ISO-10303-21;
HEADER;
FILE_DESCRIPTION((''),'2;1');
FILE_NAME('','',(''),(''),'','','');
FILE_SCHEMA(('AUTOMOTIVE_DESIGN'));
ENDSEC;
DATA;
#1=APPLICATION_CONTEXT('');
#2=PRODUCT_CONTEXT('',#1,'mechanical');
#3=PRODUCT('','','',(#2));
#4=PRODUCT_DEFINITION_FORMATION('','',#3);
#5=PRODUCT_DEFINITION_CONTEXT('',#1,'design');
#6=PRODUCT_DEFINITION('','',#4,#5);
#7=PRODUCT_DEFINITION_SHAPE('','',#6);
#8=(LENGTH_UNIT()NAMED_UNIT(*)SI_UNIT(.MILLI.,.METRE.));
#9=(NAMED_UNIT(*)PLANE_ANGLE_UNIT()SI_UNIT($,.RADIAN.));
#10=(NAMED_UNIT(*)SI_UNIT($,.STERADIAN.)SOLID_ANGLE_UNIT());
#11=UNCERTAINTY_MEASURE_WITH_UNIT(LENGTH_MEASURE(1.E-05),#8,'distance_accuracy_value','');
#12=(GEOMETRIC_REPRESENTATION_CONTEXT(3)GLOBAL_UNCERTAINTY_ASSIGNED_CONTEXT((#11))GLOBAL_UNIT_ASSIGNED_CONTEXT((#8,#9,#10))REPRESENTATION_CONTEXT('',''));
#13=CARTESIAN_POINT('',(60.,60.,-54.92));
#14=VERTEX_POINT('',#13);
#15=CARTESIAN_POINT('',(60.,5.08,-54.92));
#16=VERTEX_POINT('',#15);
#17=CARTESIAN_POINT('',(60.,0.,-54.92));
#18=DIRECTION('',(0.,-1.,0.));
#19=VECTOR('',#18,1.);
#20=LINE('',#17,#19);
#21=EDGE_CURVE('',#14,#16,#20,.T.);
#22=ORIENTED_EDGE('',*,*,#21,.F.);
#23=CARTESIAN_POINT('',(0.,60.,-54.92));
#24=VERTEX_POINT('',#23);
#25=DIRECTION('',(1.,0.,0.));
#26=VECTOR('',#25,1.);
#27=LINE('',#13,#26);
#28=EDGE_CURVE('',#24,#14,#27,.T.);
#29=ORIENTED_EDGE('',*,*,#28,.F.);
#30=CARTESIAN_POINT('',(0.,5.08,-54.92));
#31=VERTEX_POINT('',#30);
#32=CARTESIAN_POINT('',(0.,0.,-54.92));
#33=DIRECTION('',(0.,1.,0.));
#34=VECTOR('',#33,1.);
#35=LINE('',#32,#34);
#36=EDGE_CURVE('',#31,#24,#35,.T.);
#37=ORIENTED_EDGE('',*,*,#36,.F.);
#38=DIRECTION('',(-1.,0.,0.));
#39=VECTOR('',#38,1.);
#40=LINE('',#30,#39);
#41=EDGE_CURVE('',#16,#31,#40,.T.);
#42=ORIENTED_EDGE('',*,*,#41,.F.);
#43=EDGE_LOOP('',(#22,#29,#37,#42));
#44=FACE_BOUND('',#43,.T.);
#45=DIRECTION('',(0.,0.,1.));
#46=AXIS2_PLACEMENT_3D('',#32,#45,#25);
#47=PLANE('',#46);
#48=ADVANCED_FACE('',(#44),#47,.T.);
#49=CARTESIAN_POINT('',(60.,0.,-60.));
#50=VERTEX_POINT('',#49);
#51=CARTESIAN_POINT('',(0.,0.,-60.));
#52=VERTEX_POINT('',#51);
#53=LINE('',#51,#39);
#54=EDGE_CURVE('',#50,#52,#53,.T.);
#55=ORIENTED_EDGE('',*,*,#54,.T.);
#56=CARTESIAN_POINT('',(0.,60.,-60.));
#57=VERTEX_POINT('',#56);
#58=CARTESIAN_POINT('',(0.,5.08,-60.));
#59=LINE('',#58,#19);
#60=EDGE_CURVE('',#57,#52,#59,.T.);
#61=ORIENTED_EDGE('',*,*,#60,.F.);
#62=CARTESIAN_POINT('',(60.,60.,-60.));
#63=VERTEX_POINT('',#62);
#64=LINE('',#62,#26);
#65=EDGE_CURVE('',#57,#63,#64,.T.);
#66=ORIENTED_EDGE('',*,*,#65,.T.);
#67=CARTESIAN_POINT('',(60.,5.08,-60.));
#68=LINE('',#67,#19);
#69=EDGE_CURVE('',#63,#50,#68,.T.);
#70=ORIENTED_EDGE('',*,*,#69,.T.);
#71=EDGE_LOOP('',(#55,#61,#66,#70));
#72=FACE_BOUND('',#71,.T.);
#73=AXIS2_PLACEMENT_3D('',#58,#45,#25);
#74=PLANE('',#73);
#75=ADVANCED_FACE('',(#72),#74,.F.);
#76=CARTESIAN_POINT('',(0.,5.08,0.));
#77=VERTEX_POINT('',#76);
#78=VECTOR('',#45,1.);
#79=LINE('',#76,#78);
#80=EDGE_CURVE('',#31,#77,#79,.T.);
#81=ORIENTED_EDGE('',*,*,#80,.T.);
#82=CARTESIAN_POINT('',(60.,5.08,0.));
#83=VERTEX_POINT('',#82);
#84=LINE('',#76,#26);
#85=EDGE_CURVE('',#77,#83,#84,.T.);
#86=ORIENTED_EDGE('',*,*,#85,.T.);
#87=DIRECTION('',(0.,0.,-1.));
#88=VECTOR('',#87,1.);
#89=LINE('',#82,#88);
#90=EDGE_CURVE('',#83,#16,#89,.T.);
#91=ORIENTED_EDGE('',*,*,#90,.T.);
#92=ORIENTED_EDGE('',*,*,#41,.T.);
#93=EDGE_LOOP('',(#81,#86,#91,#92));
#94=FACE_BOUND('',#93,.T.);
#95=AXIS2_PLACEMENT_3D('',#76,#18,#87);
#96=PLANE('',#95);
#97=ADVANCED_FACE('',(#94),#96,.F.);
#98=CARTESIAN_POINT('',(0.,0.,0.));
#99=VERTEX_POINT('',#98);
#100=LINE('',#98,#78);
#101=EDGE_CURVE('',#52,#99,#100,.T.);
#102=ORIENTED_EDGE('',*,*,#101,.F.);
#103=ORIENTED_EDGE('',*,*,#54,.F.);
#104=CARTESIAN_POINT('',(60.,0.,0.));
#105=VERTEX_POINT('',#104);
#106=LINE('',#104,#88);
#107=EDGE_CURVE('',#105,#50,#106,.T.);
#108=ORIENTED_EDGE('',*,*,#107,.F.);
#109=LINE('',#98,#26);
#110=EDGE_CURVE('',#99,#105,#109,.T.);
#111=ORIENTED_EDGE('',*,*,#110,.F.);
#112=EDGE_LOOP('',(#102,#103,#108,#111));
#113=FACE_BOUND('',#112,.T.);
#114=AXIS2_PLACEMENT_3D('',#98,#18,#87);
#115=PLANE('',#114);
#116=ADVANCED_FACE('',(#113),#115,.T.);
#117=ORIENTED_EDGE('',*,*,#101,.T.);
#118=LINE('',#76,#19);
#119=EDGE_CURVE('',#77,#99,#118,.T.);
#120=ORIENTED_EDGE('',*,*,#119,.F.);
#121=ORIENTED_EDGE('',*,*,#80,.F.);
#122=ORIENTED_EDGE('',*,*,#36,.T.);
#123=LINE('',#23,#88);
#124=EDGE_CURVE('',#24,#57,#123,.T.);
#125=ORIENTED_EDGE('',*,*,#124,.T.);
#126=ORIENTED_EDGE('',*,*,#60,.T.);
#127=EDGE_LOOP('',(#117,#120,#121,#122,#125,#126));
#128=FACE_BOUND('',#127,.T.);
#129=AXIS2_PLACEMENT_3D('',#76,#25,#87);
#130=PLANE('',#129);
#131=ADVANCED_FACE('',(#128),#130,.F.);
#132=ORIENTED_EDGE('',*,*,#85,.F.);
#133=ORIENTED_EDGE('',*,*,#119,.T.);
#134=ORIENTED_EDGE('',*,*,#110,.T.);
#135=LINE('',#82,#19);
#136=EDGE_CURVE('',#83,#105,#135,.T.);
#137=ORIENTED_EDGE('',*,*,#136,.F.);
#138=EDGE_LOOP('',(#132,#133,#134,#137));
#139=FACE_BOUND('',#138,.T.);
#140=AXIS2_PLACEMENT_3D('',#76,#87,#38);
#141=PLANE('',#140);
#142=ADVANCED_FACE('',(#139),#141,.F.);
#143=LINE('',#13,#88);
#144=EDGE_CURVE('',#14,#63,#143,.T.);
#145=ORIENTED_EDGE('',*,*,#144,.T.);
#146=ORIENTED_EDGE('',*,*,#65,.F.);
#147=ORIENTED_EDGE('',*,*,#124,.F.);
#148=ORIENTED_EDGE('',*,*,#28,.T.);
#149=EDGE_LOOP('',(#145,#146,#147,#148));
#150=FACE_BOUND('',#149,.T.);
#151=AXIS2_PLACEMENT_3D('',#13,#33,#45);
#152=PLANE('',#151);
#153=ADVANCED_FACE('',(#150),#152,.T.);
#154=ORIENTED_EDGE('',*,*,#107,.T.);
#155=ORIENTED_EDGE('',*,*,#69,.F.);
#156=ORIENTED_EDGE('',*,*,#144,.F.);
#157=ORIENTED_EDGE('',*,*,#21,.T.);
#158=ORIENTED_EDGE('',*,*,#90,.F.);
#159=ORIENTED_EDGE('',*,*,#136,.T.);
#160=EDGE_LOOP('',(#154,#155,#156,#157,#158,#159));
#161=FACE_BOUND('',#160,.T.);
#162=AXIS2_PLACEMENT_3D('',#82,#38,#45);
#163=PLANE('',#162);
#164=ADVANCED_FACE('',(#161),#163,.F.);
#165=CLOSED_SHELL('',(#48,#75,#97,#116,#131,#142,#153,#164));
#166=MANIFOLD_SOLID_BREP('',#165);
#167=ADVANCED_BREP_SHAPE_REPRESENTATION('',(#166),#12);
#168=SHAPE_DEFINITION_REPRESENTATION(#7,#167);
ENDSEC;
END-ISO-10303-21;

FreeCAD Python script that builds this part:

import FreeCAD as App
import Part
import Sketcher
from FreeCAD import Vector


def add_polygon(sketch, points):
    """Adds a closed chain of lines whose ends are joined by coincident constraints."""
    first, n = sketch.GeometryCount, len(points)
    for a, b in zip(points, points[1:] + points[:1]):
        sketch.addGeometry(Part.LineSegment(App.Vector(*a, 0), App.Vector(*b, 0)), False)
    for i in range(n):
        sketch.addConstraint(Sketcher.Constraint("Coincident", first + i, 2, first + (i + 1) % n, 1))

doc = App.newDocument("Part")
body = doc.addObject("PartDesign::Body", "Body")

sketch1 = body.newObject("Sketcher::SketchObject", "Sketch")
sketch1.AttachmentSupport = (doc.getObject("XZ_Plane"), [""])
sketch1.MapMode = "FlatFace"
add_polygon(sketch1, [(0, -60), (0, 0), (60, 0), (60, -60)])
sketch1.addConstraint([
    Sketcher.Constraint("Vertical", 0),
    Sketcher.Constraint("Horizontal", 1),
    Sketcher.Constraint("Vertical", 2),
    Sketcher.Constraint("Horizontal", 3),
    Sketcher.Constraint("Coincident", 0, 2, -1, 1),
    Sketcher.Constraint("Equal", 3, 0),
    Sketcher.Constraint("DistanceX", 1, 1, 1, 2, 60.0),
])
pad1 = body.newObject("PartDesign::Pad", "Pad")
pad1.Profile = sketch1
pad1.Length = 5.08
pad1.Reversed = True

sketch2 = body.newObject("Sketcher::SketchObject", "Sketch001")
sketch2.AttachmentSupport = (doc.getObject("XY_Plane"), [""])
sketch2.MapMode = "FlatFace"
sketch2.AttachmentOffset = App.Placement(Vector(0, 0, -60), App.Rotation())
add_polygon(sketch2, [(60, 60), (60, 0), (0, 0), (0, 60)])
sketch2.addConstraint([
    Sketcher.Constraint("Vertical", 0),
    Sketcher.Constraint("Horizontal", 1),
    Sketcher.Constraint("Vertical", 2),
    Sketcher.Constraint("Horizontal", 3),
    Sketcher.Constraint("Coincident", 1, 2, -1, 1),
    Sketcher.Constraint("Equal", 3, 0),
    Sketcher.Constraint("DistanceX", 1, 2, 1, 1, 60.0),
])
pad2 = body.newObject("PartDesign::Pad", "Pad001")
pad2.Profile = sketch2
pad2.Length = 5.08

doc.recompute()
